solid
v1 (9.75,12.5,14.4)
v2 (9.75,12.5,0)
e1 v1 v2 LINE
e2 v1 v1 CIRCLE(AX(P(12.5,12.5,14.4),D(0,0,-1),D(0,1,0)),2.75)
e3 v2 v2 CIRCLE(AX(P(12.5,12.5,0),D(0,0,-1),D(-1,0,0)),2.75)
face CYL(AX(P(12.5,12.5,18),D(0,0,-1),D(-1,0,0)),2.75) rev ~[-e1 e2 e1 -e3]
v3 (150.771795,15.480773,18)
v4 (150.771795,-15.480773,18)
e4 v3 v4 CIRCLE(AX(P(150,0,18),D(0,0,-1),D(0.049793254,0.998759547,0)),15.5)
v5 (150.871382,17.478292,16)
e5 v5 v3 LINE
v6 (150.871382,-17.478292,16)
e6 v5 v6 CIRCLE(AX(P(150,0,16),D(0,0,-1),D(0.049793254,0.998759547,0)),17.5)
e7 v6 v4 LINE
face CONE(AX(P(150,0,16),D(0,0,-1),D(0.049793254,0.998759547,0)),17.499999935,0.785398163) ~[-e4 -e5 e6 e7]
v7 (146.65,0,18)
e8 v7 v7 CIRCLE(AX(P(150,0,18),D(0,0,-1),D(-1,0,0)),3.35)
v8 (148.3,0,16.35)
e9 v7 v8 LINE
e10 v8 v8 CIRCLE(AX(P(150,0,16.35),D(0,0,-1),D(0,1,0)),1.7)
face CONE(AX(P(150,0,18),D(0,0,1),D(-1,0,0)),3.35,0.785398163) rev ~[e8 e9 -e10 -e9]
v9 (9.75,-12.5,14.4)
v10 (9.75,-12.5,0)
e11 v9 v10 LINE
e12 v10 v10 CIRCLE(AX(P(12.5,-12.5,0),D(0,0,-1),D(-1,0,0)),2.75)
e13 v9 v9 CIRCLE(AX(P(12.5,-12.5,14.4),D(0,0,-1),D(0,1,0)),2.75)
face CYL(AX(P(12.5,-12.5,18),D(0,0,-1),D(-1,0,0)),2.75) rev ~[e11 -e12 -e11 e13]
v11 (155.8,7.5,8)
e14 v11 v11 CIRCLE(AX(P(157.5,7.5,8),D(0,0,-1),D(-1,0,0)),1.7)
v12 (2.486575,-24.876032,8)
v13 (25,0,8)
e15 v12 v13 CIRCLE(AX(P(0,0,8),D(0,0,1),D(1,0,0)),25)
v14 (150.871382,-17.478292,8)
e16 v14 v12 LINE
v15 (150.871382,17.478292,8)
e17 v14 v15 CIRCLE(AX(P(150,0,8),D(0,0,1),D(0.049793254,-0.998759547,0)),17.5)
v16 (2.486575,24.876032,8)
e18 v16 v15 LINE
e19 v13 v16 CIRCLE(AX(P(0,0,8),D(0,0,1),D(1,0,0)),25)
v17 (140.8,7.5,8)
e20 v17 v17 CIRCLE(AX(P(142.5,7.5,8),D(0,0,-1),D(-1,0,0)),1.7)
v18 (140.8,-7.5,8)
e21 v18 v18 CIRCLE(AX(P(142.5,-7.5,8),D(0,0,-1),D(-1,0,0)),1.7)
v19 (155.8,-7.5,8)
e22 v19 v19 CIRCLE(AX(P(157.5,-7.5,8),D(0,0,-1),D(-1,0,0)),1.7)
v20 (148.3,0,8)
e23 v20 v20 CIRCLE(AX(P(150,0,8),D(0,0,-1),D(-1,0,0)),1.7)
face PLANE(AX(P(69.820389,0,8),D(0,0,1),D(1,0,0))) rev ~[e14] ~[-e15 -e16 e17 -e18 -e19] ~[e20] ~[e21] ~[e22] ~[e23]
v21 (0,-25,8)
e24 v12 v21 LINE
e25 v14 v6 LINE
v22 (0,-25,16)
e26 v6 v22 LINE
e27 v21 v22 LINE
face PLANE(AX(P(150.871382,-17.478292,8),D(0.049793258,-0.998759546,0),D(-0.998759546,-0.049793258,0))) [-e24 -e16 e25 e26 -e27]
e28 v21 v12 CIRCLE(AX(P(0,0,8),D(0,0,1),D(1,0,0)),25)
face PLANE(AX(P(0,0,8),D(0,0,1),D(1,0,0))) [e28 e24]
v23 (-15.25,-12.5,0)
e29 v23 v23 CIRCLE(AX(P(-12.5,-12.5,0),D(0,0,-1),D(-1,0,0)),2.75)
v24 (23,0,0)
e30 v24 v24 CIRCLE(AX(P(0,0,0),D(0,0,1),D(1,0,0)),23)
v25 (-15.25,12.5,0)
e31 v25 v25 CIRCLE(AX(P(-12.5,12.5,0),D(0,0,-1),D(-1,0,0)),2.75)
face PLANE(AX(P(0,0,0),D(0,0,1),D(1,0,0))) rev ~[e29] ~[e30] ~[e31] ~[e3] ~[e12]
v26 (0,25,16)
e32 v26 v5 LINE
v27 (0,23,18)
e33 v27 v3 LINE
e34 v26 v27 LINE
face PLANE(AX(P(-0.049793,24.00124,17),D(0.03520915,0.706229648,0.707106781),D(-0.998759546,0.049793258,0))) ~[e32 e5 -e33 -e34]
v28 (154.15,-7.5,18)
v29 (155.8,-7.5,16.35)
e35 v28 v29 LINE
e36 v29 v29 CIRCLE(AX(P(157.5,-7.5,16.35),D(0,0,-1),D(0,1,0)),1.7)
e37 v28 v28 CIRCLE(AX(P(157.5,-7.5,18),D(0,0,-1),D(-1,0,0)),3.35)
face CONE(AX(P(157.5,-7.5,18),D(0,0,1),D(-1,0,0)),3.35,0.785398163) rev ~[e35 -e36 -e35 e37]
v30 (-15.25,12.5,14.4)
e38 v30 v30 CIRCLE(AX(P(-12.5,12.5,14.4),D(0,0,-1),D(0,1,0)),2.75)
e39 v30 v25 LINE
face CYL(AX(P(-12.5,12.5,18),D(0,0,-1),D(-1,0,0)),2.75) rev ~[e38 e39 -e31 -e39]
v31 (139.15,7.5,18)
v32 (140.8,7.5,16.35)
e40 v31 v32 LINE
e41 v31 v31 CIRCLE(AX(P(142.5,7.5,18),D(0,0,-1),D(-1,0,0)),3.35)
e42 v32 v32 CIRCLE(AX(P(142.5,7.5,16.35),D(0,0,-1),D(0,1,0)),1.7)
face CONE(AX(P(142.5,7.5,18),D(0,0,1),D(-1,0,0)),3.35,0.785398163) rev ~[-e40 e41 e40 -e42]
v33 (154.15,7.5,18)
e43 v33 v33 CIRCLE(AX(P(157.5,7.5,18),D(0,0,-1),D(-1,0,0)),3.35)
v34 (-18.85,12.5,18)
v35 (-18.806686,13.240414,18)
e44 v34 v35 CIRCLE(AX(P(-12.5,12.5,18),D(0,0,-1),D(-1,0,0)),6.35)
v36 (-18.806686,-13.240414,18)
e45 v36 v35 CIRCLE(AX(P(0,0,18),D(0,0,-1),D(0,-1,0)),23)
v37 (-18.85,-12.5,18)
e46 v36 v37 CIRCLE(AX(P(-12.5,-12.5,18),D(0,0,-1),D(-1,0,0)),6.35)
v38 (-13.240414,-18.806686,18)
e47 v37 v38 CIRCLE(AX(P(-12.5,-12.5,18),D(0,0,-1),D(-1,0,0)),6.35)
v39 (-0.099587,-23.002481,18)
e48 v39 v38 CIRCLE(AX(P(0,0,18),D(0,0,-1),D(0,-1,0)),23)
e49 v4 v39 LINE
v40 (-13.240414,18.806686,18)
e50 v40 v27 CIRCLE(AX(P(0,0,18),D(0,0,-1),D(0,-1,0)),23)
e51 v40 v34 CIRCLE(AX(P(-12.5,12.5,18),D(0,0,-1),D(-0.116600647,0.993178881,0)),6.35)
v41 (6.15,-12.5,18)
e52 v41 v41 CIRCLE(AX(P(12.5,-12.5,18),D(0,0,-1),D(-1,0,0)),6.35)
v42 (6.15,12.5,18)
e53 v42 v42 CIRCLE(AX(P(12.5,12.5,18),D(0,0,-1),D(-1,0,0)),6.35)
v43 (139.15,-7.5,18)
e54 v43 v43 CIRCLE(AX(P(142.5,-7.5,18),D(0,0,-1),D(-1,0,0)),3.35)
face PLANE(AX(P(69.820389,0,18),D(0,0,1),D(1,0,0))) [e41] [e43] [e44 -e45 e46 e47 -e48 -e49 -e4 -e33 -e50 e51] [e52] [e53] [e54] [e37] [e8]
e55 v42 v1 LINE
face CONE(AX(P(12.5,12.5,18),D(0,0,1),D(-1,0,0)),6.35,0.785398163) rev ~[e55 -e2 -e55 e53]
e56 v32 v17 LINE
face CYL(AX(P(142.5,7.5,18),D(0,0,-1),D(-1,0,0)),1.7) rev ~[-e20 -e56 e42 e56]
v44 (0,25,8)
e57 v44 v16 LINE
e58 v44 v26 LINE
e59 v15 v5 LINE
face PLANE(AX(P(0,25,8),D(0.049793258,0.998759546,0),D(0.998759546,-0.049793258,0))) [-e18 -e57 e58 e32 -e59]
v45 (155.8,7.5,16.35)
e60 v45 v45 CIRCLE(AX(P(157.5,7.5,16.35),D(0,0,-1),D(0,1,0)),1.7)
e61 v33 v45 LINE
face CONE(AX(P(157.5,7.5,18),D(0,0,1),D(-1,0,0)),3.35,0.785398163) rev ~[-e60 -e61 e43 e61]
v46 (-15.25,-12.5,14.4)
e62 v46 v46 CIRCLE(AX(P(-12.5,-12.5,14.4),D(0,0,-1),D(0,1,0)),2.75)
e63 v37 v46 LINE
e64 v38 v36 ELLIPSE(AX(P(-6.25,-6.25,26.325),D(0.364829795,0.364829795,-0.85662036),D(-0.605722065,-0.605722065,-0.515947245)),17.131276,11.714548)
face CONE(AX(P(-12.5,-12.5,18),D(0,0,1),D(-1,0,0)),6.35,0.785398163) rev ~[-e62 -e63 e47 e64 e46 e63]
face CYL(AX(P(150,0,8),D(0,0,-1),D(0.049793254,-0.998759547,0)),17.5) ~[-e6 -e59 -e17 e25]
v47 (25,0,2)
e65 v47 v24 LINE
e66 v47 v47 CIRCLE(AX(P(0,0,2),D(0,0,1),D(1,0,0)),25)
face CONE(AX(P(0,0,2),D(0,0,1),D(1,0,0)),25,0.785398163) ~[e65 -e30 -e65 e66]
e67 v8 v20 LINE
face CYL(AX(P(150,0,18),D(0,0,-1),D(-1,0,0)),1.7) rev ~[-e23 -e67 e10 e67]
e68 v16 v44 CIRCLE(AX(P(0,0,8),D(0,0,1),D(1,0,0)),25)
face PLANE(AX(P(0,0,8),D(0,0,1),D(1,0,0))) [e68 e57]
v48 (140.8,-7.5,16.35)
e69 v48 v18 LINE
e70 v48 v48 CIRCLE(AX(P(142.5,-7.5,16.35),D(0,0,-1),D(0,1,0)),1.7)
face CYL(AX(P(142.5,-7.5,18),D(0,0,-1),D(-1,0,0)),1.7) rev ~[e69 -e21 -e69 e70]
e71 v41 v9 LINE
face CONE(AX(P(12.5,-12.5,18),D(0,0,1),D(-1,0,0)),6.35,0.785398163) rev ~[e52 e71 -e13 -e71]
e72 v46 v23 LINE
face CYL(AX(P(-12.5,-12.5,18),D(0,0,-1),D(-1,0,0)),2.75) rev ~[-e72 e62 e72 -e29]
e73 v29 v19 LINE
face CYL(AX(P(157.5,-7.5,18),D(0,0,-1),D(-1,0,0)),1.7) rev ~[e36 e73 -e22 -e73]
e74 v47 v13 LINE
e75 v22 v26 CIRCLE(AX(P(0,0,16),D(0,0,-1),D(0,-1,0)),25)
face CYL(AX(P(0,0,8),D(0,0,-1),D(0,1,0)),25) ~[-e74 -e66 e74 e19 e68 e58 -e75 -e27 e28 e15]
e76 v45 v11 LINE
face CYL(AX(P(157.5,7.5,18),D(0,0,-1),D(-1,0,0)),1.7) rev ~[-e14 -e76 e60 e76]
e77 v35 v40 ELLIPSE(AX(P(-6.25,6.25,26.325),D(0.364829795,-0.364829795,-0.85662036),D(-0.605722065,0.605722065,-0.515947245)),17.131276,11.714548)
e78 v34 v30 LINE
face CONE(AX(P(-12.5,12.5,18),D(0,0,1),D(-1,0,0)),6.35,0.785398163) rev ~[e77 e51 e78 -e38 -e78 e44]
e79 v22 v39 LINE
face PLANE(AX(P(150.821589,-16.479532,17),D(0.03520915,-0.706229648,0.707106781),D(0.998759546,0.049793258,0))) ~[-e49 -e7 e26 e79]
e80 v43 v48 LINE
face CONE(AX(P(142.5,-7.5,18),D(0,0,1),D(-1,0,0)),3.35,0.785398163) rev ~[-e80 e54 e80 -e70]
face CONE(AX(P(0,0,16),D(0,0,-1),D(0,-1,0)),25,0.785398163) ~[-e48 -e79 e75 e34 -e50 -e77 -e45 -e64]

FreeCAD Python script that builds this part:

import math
import FreeCAD as App
import Part
import Sketcher

V = App.Vector


def edges_at(feature, points):
    """Names of the edges that pass closest to the given points."""
    edges = feature.Shape.Edges
    near = lambda p: min(range(len(edges)), key=lambda i: edges[i].distToShape(Part.Vertex(*p))[0])
    return sorted({f"Edge{near(p) + 1}" for p in points})

doc = App.newDocument("Part")
body = doc.addObject("PartDesign::Body", "Body")

sketch1 = body.newObject("Sketcher::SketchObject", "Sketch")
sketch1.AttachmentSupport = (doc.getObject("XY_Plane"), [""])
sketch1.MapMode = "FlatFace"
sketch1.addGeometry(Part.Circle(V(0, 0, 0), V(0, 0, 1), 25), False)
sketch1.addConstraint([
    Sketcher.Constraint("Coincident", 0, 3, -1, 1),
    Sketcher.Constraint("Diameter", 0, 50.0),
])
pad1 = body.newObject("PartDesign::Pad", "Pad")
pad1.Profile = sketch1
pad1.Length = 8

sketch2 = body.newObject("Sketcher::SketchObject", "Sketch001")
sketch2.AttachmentSupport = (doc.getObject("XY_Plane"), [""])
sketch2.MapMode = "FlatFace"
sketch2.AttachmentOffset = App.Placement(V(0, 0, 8), App.Rotation())
sketch2.addGeometry([
    Part.ArcOfCircle(Part.Circle(V(0, 0, 0), V(0, 0, 1), 25), math.radians(90), math.radians(270)),
    Part.LineSegment(V(0, -25, 0), V(151, -17, 0)),
    Part.ArcOfCircle(Part.Circle(V(150, 0, 0), V(0, 0, 1), 17), math.radians(-87), math.radians(87)),
    Part.LineSegment(V(151, 17, 0), V(0, 25, 0)),
], False)
sketch2.addConstraint([
    Sketcher.Constraint("Coincident", 0, 2, 1, 1),
    Sketcher.Constraint("Tangent", 1, 2, 2, 1),
    Sketcher.Constraint("Tangent", 2, 2, 3, 1),
    Sketcher.Constraint("Coincident", 3, 2, 0, 1),
    Sketcher.Constraint("Coincident", 0, 3, -1, 1),
    Sketcher.Constraint("Symmetric", 1, 2, 2, 2, -1),
    Sketcher.Constraint("PointOnObject", 0, 2, -2),
    Sketcher.Constraint("Radius", 0, 25.0),
    Sketcher.Constraint("Radius", 2, 17.5),
    Sketcher.Constraint("DistanceX", -1, 1, 2, 3, 150.0),
])
pad2 = body.newObject("PartDesign::Pad", "Pad001")
pad2.Profile = sketch2
pad2.Length = 10
doc.recompute()

chamfer = body.newObject("PartDesign::Chamfer", "Chamfer")
chamfer.Base = (pad2, edges_at(pad2, [(75.436, -21.239, 18)]))
chamfer.Size = 2

sketch3 = body.newObject("Sketcher::SketchObject", "Sketch002")
sketch3.AttachmentSupport = (doc.getObject("XY_Plane"), [""])
sketch3.MapMode = "FlatFace"
sketch3.AttachmentOffset = App.Placement(V(0, 0, 18), App.Rotation())
sketch3.addGeometry([
    Part.Circle(V(-12.5, 12.5, 0), V(0, 0, 1), 2.8),
    Part.Circle(V(12.5, 12.5, 0), V(0, 0, 1), 2.8),
    Part.Circle(V(12.5, -12.5, 0), V(0, 0, 1), 2.8),
    Part.Circle(V(-12.5, -12.5, 0), V(0, 0, 1), 2.8),
], False)
sketch3.addConstraint([
    Sketcher.Constraint("Equal", 0, 1),
    Sketcher.Constraint("Equal", 1, 2),
    Sketcher.Constraint("Equal", 2, 3),
    Sketcher.Constraint("Symmetric", 0, 3, 2, 3, -1, 1),
    Sketcher.Constraint("Symmetric", 1, 3, 3, 3, -1, 1),
    Sketcher.Constraint("Symmetric", 0, 3, 1, 3, -2),
    Sketcher.Constraint("Diameter", 0, 5.5),
    Sketcher.Constraint("DistanceX", 0, 3, 1, 3, 25.0),
    Sketcher.Constraint("DistanceY", 2, 3, 1, 3, 25.0),
])
doc.recompute()
hole = body.newObject("PartDesign::Hole", "Hole")
hole.Profile = sketch3
hole.ThreadType = "None"
hole.Diameter = 5.5
hole.DepthType = "Dimension"
hole.Depth = 25
hole.DrillPoint = "Flat"
hole.HoleCutType = "Countersink"
hole.HoleCutDiameter = 12.7
hole.HoleCutCountersinkAngle = 90

sketch4 = body.newObject("Sketcher::SketchObject", "Sketch003")
sketch4.AttachmentSupport = (doc.getObject("XY_Plane"), [""])
sketch4.MapMode = "FlatFace"
sketch4.AttachmentOffset = App.Placement(V(0, 0, 18), App.Rotation())
sketch4.addGeometry([
    Part.Circle(V(142.5, 7.5, 0), V(0, 0, 1), 1.7),
    Part.Circle(V(157.5, 7.5, 0), V(0, 0, 1), 1.7),
    Part.Circle(V(157.5, -7.5, 0), V(0, 0, 1), 1.7),
    Part.Circle(V(142.5, -7.5, 0), V(0, 0, 1), 1.7),
    Part.Circle(V(150, 0, 0), V(0, 0, 1), 1.7),
], False)
sketch4.addConstraint([
    Sketcher.Constraint("Equal", 0, 1),
    Sketcher.Constraint("Equal", 1, 2),
    Sketcher.Constraint("Equal", 2, 3),
    Sketcher.Constraint("Equal", 3, 4),
    Sketcher.Constraint("Symmetric", 1, 3, 2, 3, -1),
    Sketcher.Constraint("Symmetric", 0, 3, 3, 3, -1),
    Sketcher.Constraint("PointOnObject", 4, 3, -1),
    Sketcher.Constraint("Horizontal", 0, 3, 1, 3),
    Sketcher.Constraint("Diameter", 0, 3.4),
    Sketcher.Constraint("DistanceX", -1, 1, 4, 3, 150.0),
    Sketcher.Constraint("DistanceX", 0, 3, 1, 3, 15.0),
    Sketcher.Constraint("DistanceY", 2, 3, 1, 3, 15.0),
    Sketcher.Constraint("DistanceX", -1, 1, 0, 3, 142.5),
])
doc.recompute()
hole2 = body.newObject("PartDesign::Hole", "Hole001")
hole2.Profile = sketch4
hole2.ThreadType = "None"
hole2.Diameter = 3.4
hole2.DepthType = "Dimension"
hole2.Depth = 25
hole2.DrillPoint = "Flat"
hole2.HoleCutType = "Countersink"
hole2.HoleCutDiameter = 6.7
hole2.HoleCutCountersinkAngle = 90
doc.recompute()

chamfer2 = body.newObject("PartDesign::Chamfer", "Chamfer001")
chamfer2.Base = (hole2, edges_at(hole2, [(-25, 0, 0)]))
chamfer2.Size = 2

doc.recompute()
